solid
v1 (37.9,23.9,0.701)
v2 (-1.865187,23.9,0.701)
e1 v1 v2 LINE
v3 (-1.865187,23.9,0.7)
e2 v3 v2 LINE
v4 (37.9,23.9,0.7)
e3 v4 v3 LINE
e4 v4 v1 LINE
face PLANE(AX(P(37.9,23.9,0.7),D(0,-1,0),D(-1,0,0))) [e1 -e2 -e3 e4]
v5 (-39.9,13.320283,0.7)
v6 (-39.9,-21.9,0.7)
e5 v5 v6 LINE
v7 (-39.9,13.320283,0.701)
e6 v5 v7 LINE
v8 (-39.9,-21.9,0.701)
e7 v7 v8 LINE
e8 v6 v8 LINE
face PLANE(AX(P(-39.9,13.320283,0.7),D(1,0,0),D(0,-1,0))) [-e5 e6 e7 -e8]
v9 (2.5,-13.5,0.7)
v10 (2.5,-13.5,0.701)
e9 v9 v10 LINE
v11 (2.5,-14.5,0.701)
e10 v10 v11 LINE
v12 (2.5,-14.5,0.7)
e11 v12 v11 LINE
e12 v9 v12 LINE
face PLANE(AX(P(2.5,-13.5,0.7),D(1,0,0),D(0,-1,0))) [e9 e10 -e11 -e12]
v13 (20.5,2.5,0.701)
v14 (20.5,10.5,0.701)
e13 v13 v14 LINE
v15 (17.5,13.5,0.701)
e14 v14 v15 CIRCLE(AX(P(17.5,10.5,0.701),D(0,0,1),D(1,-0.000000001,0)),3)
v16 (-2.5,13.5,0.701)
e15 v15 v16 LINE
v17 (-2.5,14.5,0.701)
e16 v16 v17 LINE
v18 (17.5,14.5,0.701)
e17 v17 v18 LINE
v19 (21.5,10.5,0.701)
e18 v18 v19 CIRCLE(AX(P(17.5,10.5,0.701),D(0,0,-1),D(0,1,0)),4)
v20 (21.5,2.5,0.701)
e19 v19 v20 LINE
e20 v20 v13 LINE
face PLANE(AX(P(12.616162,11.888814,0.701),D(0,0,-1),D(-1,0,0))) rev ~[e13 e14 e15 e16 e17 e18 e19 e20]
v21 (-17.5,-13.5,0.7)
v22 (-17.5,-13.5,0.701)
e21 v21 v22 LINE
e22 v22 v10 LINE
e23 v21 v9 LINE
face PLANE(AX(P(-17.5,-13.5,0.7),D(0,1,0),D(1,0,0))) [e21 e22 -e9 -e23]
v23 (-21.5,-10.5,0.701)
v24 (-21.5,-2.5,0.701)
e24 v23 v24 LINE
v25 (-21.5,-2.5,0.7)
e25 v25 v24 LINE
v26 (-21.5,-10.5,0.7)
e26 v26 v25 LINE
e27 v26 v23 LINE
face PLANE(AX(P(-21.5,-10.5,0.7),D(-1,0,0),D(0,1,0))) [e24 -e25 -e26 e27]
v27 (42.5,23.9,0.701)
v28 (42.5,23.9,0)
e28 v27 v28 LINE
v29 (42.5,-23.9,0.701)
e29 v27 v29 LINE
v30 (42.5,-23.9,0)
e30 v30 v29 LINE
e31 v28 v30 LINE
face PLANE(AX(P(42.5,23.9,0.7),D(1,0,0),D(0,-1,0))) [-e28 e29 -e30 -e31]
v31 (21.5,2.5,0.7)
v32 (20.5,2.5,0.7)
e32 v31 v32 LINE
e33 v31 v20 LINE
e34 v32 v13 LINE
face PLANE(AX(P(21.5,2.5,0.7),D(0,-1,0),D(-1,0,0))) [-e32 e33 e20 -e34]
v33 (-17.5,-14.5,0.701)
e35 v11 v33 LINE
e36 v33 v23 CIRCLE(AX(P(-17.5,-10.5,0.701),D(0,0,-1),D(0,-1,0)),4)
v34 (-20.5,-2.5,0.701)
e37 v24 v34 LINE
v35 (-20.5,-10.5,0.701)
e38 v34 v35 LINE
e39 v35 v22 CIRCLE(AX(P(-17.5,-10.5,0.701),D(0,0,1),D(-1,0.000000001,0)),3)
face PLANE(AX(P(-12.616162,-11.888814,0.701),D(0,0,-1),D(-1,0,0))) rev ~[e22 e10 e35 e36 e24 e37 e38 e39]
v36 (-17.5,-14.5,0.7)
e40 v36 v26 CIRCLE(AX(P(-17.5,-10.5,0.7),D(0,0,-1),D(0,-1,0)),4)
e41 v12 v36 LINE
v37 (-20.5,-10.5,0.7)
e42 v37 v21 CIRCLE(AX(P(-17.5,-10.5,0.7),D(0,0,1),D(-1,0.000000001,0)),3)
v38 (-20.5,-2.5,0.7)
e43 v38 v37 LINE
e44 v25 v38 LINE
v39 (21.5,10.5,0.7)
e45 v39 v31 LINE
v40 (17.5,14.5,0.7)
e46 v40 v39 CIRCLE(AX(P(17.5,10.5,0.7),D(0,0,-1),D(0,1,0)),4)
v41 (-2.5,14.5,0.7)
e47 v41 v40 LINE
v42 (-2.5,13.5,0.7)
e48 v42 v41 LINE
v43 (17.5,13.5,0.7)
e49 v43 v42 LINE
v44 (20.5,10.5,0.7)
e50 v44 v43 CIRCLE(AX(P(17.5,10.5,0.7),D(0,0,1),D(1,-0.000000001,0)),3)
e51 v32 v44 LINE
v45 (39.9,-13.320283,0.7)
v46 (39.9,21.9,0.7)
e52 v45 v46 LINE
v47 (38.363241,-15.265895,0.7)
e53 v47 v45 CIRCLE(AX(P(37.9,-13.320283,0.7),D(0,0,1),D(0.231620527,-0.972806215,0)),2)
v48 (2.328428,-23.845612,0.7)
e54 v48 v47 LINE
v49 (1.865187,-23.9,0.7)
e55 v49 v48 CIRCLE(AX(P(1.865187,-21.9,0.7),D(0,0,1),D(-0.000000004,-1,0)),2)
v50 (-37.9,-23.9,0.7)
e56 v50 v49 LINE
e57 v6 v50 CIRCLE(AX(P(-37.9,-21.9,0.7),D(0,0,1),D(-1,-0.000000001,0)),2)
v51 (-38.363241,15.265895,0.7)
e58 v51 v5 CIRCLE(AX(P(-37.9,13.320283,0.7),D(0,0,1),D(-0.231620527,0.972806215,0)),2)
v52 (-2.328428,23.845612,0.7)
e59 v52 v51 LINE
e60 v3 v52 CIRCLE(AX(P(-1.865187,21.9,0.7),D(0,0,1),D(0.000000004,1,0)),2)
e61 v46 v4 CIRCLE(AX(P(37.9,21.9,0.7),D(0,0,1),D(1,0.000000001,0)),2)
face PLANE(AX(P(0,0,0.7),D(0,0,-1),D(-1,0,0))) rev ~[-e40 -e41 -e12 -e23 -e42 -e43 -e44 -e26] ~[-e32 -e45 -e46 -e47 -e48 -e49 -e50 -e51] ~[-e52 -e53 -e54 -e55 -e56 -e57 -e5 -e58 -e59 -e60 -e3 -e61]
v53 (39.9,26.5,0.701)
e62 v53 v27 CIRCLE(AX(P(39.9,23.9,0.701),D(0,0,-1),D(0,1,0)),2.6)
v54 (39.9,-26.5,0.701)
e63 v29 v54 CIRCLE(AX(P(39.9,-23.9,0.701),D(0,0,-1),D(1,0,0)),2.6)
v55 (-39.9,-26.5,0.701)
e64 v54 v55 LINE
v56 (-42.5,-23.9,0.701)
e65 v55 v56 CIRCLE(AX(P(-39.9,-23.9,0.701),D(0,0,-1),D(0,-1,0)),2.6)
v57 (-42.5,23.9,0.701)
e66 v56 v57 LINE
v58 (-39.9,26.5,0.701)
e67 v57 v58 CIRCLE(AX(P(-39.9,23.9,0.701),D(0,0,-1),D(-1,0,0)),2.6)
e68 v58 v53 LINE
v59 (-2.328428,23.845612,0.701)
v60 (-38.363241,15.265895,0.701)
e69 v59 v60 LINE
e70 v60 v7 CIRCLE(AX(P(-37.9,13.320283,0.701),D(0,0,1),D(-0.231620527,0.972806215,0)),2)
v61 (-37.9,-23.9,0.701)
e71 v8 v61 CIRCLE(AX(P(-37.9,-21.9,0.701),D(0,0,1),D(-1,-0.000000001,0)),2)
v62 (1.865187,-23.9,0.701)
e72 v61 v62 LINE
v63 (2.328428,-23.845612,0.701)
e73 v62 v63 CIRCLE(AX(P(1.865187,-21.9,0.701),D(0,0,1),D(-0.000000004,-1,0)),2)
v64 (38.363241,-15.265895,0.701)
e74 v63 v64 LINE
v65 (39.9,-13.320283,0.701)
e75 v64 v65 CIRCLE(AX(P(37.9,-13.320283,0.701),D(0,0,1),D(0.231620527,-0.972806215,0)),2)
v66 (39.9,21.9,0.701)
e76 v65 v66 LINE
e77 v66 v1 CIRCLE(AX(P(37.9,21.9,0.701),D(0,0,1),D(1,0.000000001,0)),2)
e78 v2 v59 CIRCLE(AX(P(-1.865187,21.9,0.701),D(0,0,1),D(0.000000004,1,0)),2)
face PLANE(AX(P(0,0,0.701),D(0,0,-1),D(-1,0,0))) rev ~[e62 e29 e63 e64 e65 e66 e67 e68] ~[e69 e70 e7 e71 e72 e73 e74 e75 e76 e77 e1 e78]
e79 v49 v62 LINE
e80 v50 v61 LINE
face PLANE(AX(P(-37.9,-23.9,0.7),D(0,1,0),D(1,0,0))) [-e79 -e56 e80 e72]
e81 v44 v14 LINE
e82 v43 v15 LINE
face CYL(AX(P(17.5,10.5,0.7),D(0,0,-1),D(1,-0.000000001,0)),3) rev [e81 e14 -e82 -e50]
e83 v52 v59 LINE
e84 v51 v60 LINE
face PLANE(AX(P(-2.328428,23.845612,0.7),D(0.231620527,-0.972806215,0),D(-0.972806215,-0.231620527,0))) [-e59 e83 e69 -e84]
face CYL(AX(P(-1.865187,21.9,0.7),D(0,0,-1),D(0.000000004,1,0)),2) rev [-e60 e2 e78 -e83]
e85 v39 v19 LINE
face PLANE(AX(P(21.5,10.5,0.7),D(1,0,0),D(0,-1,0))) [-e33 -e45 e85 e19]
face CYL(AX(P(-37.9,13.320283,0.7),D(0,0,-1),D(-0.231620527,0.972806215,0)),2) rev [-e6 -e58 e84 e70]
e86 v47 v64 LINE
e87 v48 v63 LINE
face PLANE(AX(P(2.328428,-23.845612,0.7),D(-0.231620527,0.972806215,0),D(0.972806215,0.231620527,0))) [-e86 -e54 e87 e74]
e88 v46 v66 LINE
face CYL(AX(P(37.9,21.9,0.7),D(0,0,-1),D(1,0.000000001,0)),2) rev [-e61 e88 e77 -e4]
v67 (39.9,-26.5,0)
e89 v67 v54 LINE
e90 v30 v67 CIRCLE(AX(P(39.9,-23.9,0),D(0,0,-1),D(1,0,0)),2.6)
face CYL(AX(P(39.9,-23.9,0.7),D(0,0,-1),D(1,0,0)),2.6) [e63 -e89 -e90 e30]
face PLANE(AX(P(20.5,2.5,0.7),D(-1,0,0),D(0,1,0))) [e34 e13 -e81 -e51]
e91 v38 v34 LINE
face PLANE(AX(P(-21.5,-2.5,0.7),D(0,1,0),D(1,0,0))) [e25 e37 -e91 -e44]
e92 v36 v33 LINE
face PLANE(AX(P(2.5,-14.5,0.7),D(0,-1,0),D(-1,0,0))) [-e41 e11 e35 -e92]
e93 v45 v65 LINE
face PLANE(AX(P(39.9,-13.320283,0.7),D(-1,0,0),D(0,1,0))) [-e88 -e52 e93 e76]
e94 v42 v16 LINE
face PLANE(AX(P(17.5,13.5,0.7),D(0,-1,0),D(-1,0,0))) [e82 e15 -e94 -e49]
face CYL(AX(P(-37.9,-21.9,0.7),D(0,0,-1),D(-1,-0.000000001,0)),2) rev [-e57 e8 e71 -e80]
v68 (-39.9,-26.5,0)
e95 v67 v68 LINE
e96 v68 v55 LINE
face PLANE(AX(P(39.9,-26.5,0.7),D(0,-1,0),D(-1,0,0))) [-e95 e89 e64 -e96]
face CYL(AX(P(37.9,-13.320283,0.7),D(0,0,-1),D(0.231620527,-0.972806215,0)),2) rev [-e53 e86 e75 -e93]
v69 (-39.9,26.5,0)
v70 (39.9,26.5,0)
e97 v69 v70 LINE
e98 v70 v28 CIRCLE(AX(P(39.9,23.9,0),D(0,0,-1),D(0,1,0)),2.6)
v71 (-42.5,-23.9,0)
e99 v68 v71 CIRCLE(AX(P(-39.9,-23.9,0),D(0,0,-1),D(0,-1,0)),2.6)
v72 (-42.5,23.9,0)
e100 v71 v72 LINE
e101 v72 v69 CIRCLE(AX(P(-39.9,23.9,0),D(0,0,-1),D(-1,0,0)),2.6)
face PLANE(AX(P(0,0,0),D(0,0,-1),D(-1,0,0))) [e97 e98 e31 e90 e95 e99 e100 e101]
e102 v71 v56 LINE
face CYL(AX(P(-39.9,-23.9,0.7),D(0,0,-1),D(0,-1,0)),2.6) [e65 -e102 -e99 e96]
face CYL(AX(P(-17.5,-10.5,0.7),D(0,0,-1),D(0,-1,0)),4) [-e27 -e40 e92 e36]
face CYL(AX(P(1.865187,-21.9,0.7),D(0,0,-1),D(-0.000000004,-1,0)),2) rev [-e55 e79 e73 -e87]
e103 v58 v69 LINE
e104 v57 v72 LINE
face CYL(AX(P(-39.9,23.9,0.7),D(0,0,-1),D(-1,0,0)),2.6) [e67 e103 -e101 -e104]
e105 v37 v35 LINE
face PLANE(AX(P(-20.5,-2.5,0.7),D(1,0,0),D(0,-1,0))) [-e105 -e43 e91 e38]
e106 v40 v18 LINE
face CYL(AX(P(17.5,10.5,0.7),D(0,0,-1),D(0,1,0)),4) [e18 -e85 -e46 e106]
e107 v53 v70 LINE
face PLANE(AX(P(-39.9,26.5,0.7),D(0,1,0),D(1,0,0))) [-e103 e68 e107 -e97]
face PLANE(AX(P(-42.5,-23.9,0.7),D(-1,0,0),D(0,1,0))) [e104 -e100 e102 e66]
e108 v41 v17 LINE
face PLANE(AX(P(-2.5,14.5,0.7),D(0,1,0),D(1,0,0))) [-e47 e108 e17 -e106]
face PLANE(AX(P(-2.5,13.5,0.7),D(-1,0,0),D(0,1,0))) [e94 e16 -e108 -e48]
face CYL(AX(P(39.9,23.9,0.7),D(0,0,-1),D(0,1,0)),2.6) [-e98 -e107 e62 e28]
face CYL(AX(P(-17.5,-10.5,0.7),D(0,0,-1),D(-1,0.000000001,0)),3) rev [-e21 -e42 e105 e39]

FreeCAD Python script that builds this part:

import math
import FreeCAD as App
import Part
import Sketcher
Q = App.Units.Quantity

doc = App.newDocument("Part")
body = doc.addObject("PartDesign::Body", "Body")

# Sketch on XY plane
sketch1 = body.newObject("Sketcher::SketchObject", "Sketch")
sketch1.AttachmentSupport = (doc.getObject("XY_Plane"), [""])
sketch1.MapMode = "FlatFace"
sketch1.addGeometry(Part.LineSegment(App.Vector(39.9, 26.5, 0), App.Vector(-39.9, 26.5, 0)), False)
sketch1.addGeometry(Part.ArcOfCircle(Part.Circle(App.Vector(-39.9, 23.9, 0), App.Vector(0, 0, 1), 2.6), math.radians(90), math.radians(180)), False)
sketch1.addGeometry(Part.LineSegment(App.Vector(-42.5, 23.9, 0), App.Vector(-42.5, -23.9, 0)), False)
sketch1.addGeometry(Part.ArcOfCircle(Part.Circle(App.Vector(-39.9, -23.9, 0), App.Vector(0, 0, 1), 2.6), math.radians(180), math.radians(270)), False)
sketch1.addGeometry(Part.LineSegment(App.Vector(-39.9, -26.5, 0), App.Vector(39.9, -26.5, 0)), False)
sketch1.addGeometry(Part.ArcOfCircle(Part.Circle(App.Vector(39.9, -23.9, 0), App.Vector(0, 0, 1), 2.6), math.radians(-90), math.radians(0)), False)
sketch1.addGeometry(Part.LineSegment(App.Vector(42.5, -23.9, 0), App.Vector(42.5, 23.9, 0)), False)
sketch1.addGeometry(Part.ArcOfCircle(Part.Circle(App.Vector(39.9, 23.9, 0), App.Vector(0, 0, 1), 2.6), math.radians(0), math.radians(90)), False)
sketch1.addConstraint(Sketcher.Constraint("Tangent", 0, 2, 1, 1))
sketch1.addConstraint(Sketcher.Constraint("Tangent", 1, 2, 2, 1))
sketch1.addConstraint(Sketcher.Constraint("Tangent", 2, 2, 3, 1))
sketch1.addConstraint(Sketcher.Constraint("Tangent", 3, 2, 4, 1))
sketch1.addConstraint(Sketcher.Constraint("Tangent", 4, 2, 5, 1))
sketch1.addConstraint(Sketcher.Constraint("Tangent", 5, 2, 6, 1))
sketch1.addConstraint(Sketcher.Constraint("Tangent", 6, 2, 7, 1))
sketch1.addConstraint(Sketcher.Constraint("Tangent", 7, 2, 0, 1))
sketch1.addConstraint(Sketcher.Constraint("Horizontal", 0))
sketch1.addConstraint(Sketcher.Constraint("Vertical", 2))
sketch1.addConstraint(Sketcher.Constraint("Horizontal", 4))
sketch1.addConstraint(Sketcher.Constraint("Vertical", 6))
sketch1.addConstraint(Sketcher.Constraint("Equal", 1, 3))
sketch1.addConstraint(Sketcher.Constraint("Equal", 3, 5))
sketch1.addConstraint(Sketcher.Constraint("Equal", 5, 7))
sketch1.addConstraint(Sketcher.Constraint("Symmetric", 1, 3, 5, 3, -1, 1))
sketch1.addConstraint(Sketcher.Constraint("Radius", 1, Q("2.6 mm")))
sketch1.addConstraint(Sketcher.Constraint("DistanceX", 0, 2, 0, 1, Q("79.8 mm")))
sketch1.addConstraint(Sketcher.Constraint("DistanceY", 2, 2, 2, 1, Q("47.8 mm")))
pad1 = body.newObject("PartDesign::Pad", "Pad")
pad1.Profile = sketch1
pad1.Length = 0.7

# Sketch on XY plane
sketch2 = body.newObject("Sketcher::SketchObject", "Sketch001")
sketch2.AttachmentSupport = (doc.getObject("XY_Plane"), [""])
sketch2.MapMode = "FlatFace"
sketch2.AttachmentOffset = App.Placement(App.Vector(0, 0, 0.7), App.Rotation())
sketch2.addGeometry(Part.LineSegment(App.Vector(-42.5, 23.9, 0), App.Vector(-42.5, -23.9, 0)), False)
sketch2.addGeometry(Part.ArcOfCircle(Part.Circle(App.Vector(-39.9, -23.9, 0), App.Vector(0, 0, 1), 2.6), math.radians(180), math.radians(270)), False)
sketch2.addGeometry(Part.LineSegment(App.Vector(-39.9, -26.5, 0), App.Vector(39.9, -26.5, 0)), False)
sketch2.addGeometry(Part.ArcOfCircle(Part.Circle(App.Vector(39.9, -23.9, 0), App.Vector(0, 0, 1), 2.6), math.radians(-90), math.radians(0)), False)
sketch2.addGeometry(Part.LineSegment(App.Vector(42.5, -23.9, 0), App.Vector(42.5, 23.9, 0)), False)
sketch2.addGeometry(Part.ArcOfCircle(Part.Circle(App.Vector(39.9, 23.9, 0), App.Vector(0, 0, 1), 2.6), math.radians(0), math.radians(90)), False)
sketch2.addGeometry(Part.LineSegment(App.Vector(39.9, 26.5, 0), App.Vector(-39.9, 26.5, 0)), False)
sketch2.addGeometry(Part.ArcOfCircle(Part.Circle(App.Vector(-39.9, 23.9, 0), App.Vector(0, 0, 1), 2.6), math.radians(90), math.radians(180)), False)
sketch2.addGeometry(Part.ArcOfCircle(Part.Circle(App.Vector(37.9, 21.9, 0), App.Vector(0, 0, 1), 2), math.radians(0), math.radians(90)), False)
sketch2.addGeometry(Part.LineSegment(App.Vector(39.9, 21.9, 0), App.Vector(39.9, -13.32, 0)), False)
sketch2.addGeometry(Part.ArcOfCircle(Part.Circle(App.Vector(37.9, -13.32, 0), App.Vector(0, 0, 1), 2), math.radians(-77), math.radians(0)), False)
sketch2.addGeometry(Part.LineSegment(App.Vector(38.36, -15.27, 0), App.Vector(2.33, -23.85, 0)), False)
sketch2.addGeometry(Part.ArcOfCircle(Part.Circle(App.Vector(1.87, -21.9, 0), App.Vector(0, 0, 1), 2), math.radians(-90), math.radians(-76.61)), False)
sketch2.addGeometry(Part.LineSegment(App.Vector(1.87, -23.9, 0), App.Vector(-37.9, -23.9, 0)), False)
sketch2.addGeometry(Part.ArcOfCircle(Part.Circle(App.Vector(-37.9, -21.9, 0), App.Vector(0, 0, 1), 2), math.radians(-180), math.radians(-90)), False)
sketch2.addGeometry(Part.LineSegment(App.Vector(-39.9, -21.9, 0), App.Vector(-39.9, 13.32, 0)), False)
sketch2.addGeometry(Part.ArcOfCircle(Part.Circle(App.Vector(-37.9, 13.32, 0), App.Vector(0, 0, 1), 2), math.radians(103), math.radians(180)), False)
sketch2.addGeometry(Part.LineSegment(App.Vector(-38.36, 15.27, 0), App.Vector(-2.33, 23.85, 0)), False)
sketch2.addGeometry(Part.ArcOfCircle(Part.Circle(App.Vector(-1.87, 21.9, 0), App.Vector(0, 0, 1), 2), math.radians(90), math.radians(103.39)), False)
sketch2.addGeometry(Part.LineSegment(App.Vector(-1.87, 23.9, 0), App.Vector(37.9, 23.9, 0)), False)
sketch2.addConstraint(Sketcher.Constraint("Tangent", 0, 2, 1, 1))
sketch2.addConstraint(Sketcher.Constraint("Tangent", 1, 2, 2, 1))
sketch2.addConstraint(Sketcher.Constraint("Tangent", 2, 2, 3, 1))
sketch2.addConstraint(Sketcher.Constraint("Tangent", 3, 2, 4, 1))
sketch2.addConstraint(Sketcher.Constraint("Tangent", 4, 2, 5, 1))
sketch2.addConstraint(Sketcher.Constraint("Tangent", 5, 2, 6, 1))
sketch2.addConstraint(Sketcher.Constraint("Tangent", 6, 2, 7, 1))
sketch2.addConstraint(Sketcher.Constraint("Tangent", 7, 2, 0, 1))
sketch2.addConstraint(Sketcher.Constraint("Tangent", 8, 1, 9, 1))
sketch2.addConstraint(Sketcher.Constraint("Tangent", 9, 2, 10, 2))
sketch2.addConstraint(Sketcher.Constraint("Tangent", 10, 1, 11, 1))
sketch2.addConstraint(Sketcher.Constraint("Tangent", 11, 2, 12, 2))
sketch2.addConstraint(Sketcher.Constraint("Tangent", 12, 1, 13, 1))
sketch2.addConstraint(Sketcher.Constraint("Tangent", 13, 2, 14, 2))
sketch2.addConstraint(Sketcher.Constraint("Tangent", 14, 1, 15, 1))
sketch2.addConstraint(Sketcher.Constraint("Tangent", 15, 2, 16, 2))
sketch2.addConstraint(Sketcher.Constraint("Tangent", 16, 1, 17, 1))
sketch2.addConstraint(Sketcher.Constraint("Tangent", 17, 2, 18, 2))
sketch2.addConstraint(Sketcher.Constraint("Tangent", 18, 1, 19, 1))
sketch2.addConstraint(Sketcher.Constraint("Tangent", 19, 2, 8, 2))
sketch2.addConstraint(Sketcher.Constraint("Vertical", 0))
sketch2.addConstraint(Sketcher.Constraint("Horizontal", 2))
sketch2.addConstraint(Sketcher.Constraint("Vertical", 4))
sketch2.addConstraint(Sketcher.Constraint("Horizontal", 6))
sketch2.addConstraint(Sketcher.Constraint("Vertical", 9))
sketch2.addConstraint(Sketcher.Constraint("Horizontal", 13))
sketch2.addConstraint(Sketcher.Constraint("Vertical", 15))
sketch2.addConstraint(Sketcher.Constraint("Horizontal", 19))
sketch2.addConstraint(Sketcher.Constraint("Equal", 1, 3))
sketch2.addConstraint(Sketcher.Constraint("Equal", 3, 5))
sketch2.addConstraint(Sketcher.Constraint("Equal", 5, 7))
sketch2.addConstraint(Sketcher.Constraint("Equal", 8, 10))
sketch2.addConstraint(Sketcher.Constraint("Equal", 10, 12))
sketch2.addConstraint(Sketcher.Constraint("Equal", 12, 14))
sketch2.addConstraint(Sketcher.Constraint("Equal", 14, 16))
sketch2.addConstraint(Sketcher.Constraint("Equal", 16, 18))
sketch2.addConstraint(Sketcher.Constraint("Symmetric", 1, 3, 5, 3, -1, 1))
sketch2.addConstraint(Sketcher.Constraint("Symmetric", 8, 3, 14, 3, -1, 1))
sketch2.addConstraint(Sketcher.Constraint("Symmetric", 10, 1, 16, 1, -1, 1))
sketch2.addConstraint(Sketcher.Constraint("Horizontal", 3, 2, 12, 1))
sketch2.addConstraint(Sketcher.Constraint("Vertical", 5, 2, 8, 1))
sketch2.addConstraint(Sketcher.Constraint("Radius", 8, Q("2 mm")))
sketch2.addConstraint(Sketcher.Constraint("Radius", 1, Q("2.6 mm")))
sketch2.addConstraint(Sketcher.Constraint("DistanceX", 2, 1, 2, 2, Q("79.8 mm")))
sketch2.addConstraint(Sketcher.Constraint("DistanceY", 0, 2, 0, 1, Q("47.8 mm")))
sketch2.addConstraint(Sketcher.Constraint("Distance", 11, Q("37.042129 mm")))
sketch2.addConstraint(Sketcher.Constraint("DistanceX", 13, 2, 13, 1, Q("39.765187 mm")))
pad2 = body.newObject("PartDesign::Pad", "Pad001")
pad2.Profile = sketch2
pad2.Length = 0.001

# Sketch on XY plane
sketch3 = body.newObject("Sketcher::SketchObject", "Sketch002")
sketch3.AttachmentSupport = (doc.getObject("XY_Plane"), [""])
sketch3.MapMode = "FlatFace"
sketch3.AttachmentOffset = App.Placement(App.Vector(0, 0, 0.7), App.Rotation())
sketch3.addGeometry(Part.LineSegment(App.Vector(2.5, -13.5, 0), App.Vector(-17.5, -13.5, 0)), False)
sketch3.addGeometry(Part.ArcOfCircle(Part.Circle(App.Vector(-17.5, -10.5, 0), App.Vector(0, 0, 1), 3), math.radians(180), math.radians(270)), False)
sketch3.addGeometry(Part.LineSegment(App.Vector(-20.5, -10.5, 0), App.Vector(-20.5, -2.5, 0)), False)
sketch3.addGeometry(Part.LineSegment(App.Vector(-20.5, -2.5, 0), App.Vector(-21.5, -2.5, 0)), False)
sketch3.addGeometry(Part.LineSegment(App.Vector(-21.5, -2.5, 0), App.Vector(-21.5, -10.5, 0)), False)
sketch3.addGeometry(Part.ArcOfCircle(Part.Circle(App.Vector(-17.5, -10.5, 0), App.Vector(0, 0, 1), 4), math.radians(180), math.radians(270)), False)
sketch3.addGeometry(Part.LineSegment(App.Vector(-17.5, -14.5, 0), App.Vector(2.5, -14.5, 0)), False)
sketch3.addGeometry(Part.LineSegment(App.Vector(2.5, -14.5, 0), App.Vector(2.5, -13.5, 0)), False)
sketch3.addGeometry(Part.LineSegment(App.Vector(-2.5, 13.5, 0), App.Vector(17.5, 13.5, 0)), False)
sketch3.addGeometry(Part.ArcOfCircle(Part.Circle(App.Vector(17.5, 10.5, 0), App.Vector(0, 0, 1), 3), math.radians(0), math.radians(90)), False)
sketch3.addGeometry(Part.LineSegment(App.Vector(20.5, 10.5, 0), App.Vector(20.5, 2.5, 0)), False)
sketch3.addGeometry(Part.LineSegment(App.Vector(20.5, 2.5, 0), App.Vector(21.5, 2.5, 0)), False)
sketch3.addGeometry(Part.LineSegment(App.Vector(21.5, 2.5, 0), App.Vector(21.5, 10.5, 0)), False)
sketch3.addGeometry(Part.ArcOfCircle(Part.Circle(App.Vector(17.5, 10.5, 0), App.Vector(0, 0, 1), 4), math.radians(0), math.radians(90)), False)
sketch3.addGeometry(Part.LineSegment(App.Vector(17.5, 14.5, 0), App.Vector(-2.5, 14.5, 0)), False)
sketch3.addGeometry(Part.LineSegment(App.Vector(-2.5, 14.5, 0), App.Vector(-2.5, 13.5, 0)), False)
sketch3.addConstraint(Sketcher.Constraint("Tangent", 0, 2, 1, 2))
sketch3.addConstraint(Sketcher.Constraint("Tangent", 1, 1, 2, 1))
sketch3.addConstraint(Sketcher.Constraint("Coincident", 2, 2, 3, 1))
sketch3.addConstraint(Sketcher.Constraint("Coincident", 3, 2, 4, 1))
sketch3.addConstraint(Sketcher.Constraint("Tangent", 4, 2, 5, 1))
sketch3.addConstraint(Sketcher.Constraint("Tangent", 5, 2, 6, 1))
sketch3.addConstraint(Sketcher.Constraint("Coincident", 6, 2, 7, 1))
sketch3.addConstraint(Sketcher.Constraint("Coincident", 7, 2, 0, 1))
sketch3.addConstraint(Sketcher.Constraint("Tangent", 8, 2, 9, 2))
sketch3.addConstraint(Sketcher.Constraint("Tangent", 9, 1, 10, 1))
sketch3.addConstraint(Sketcher.Constraint("Coincident", 10, 2, 11, 1))
sketch3.addConstraint(Sketcher.Constraint("Coincident", 11, 2, 12, 1))
sketch3.addConstraint(Sketcher.Constraint("Tangent", 12, 2, 13, 1))
sketch3.addConstraint(Sketcher.Constraint("Tangent", 13, 2, 14, 1))
sketch3.addConstraint(Sketcher.Constraint("Coincident", 14, 2, 15, 1))
sketch3.addConstraint(Sketcher.Constraint("Coincident", 15, 2, 8, 1))
sketch3.addConstraint(Sketcher.Constraint("Horizontal", 0))
sketch3.addConstraint(Sketcher.Constraint("Vertical", 2))
sketch3.addConstraint(Sketcher.Constraint("Horizontal", 3))
sketch3.addConstraint(Sketcher.Constraint("Vertical", 4))
sketch3.addConstraint(Sketcher.Constraint("Horizontal", 6))
sketch3.addConstraint(Sketcher.Constraint("Vertical", 7))
sketch3.addConstraint(Sketcher.Constraint("Horizontal", 8))
sketch3.addConstraint(Sketcher.Constraint("Vertical", 10))
sketch3.addConstraint(Sketcher.Constraint("Horizontal", 11))
sketch3.addConstraint(Sketcher.Constraint("Vertical", 12))
sketch3.addConstraint(Sketcher.Constraint("Horizontal", 14))
sketch3.addConstraint(Sketcher.Constraint("Vertical", 15))
sketch3.addConstraint(Sketcher.Constraint("Coincident", 5, 3, 1, 3))
sketch3.addConstraint(Sketcher.Constraint("Coincident", 13, 3, 9, 3))
sketch3.addConstraint(Sketcher.Constraint("Equal", 1, 9))
sketch3.addConstraint(Sketcher.Constraint("Equal", 5, 13))
sketch3.addConstraint(Sketcher.Constraint("Symmetric", 1, 3, 9, 3, -1, 1))
sketch3.addConstraint(Sketcher.Constraint("Equal", 6, 8))
sketch3.addConstraint(Sketcher.Constraint("Equal", 4, 10))
sketch3.addConstraint(Sketcher.Constraint("Radius", 1, Q("3 mm")))
sketch3.addConstraint(Sketcher.Constraint("Radius", 5, Q("4 mm")))
sketch3.addConstraint(Sketcher.Constraint("DistanceX", 0, 2, 0, 1, Q("20 mm")))
sketch3.addConstraint(Sketcher.Constraint("DistanceY", 2, 1, 2, 2, Q("8 mm")))
sketch3.addConstraint(Sketcher.Constraint("DistanceX", 5, 3, 9, 3, Q("35 mm")))
sketch3.addConstraint(Sketcher.Constraint("DistanceY", 5, 3, 9, 3, Q("21 mm")))
pad3 = body.newObject("PartDesign::Pad", "Pad002")
pad3.Profile = sketch3
pad3.Length = 0.001

doc.recompute()
